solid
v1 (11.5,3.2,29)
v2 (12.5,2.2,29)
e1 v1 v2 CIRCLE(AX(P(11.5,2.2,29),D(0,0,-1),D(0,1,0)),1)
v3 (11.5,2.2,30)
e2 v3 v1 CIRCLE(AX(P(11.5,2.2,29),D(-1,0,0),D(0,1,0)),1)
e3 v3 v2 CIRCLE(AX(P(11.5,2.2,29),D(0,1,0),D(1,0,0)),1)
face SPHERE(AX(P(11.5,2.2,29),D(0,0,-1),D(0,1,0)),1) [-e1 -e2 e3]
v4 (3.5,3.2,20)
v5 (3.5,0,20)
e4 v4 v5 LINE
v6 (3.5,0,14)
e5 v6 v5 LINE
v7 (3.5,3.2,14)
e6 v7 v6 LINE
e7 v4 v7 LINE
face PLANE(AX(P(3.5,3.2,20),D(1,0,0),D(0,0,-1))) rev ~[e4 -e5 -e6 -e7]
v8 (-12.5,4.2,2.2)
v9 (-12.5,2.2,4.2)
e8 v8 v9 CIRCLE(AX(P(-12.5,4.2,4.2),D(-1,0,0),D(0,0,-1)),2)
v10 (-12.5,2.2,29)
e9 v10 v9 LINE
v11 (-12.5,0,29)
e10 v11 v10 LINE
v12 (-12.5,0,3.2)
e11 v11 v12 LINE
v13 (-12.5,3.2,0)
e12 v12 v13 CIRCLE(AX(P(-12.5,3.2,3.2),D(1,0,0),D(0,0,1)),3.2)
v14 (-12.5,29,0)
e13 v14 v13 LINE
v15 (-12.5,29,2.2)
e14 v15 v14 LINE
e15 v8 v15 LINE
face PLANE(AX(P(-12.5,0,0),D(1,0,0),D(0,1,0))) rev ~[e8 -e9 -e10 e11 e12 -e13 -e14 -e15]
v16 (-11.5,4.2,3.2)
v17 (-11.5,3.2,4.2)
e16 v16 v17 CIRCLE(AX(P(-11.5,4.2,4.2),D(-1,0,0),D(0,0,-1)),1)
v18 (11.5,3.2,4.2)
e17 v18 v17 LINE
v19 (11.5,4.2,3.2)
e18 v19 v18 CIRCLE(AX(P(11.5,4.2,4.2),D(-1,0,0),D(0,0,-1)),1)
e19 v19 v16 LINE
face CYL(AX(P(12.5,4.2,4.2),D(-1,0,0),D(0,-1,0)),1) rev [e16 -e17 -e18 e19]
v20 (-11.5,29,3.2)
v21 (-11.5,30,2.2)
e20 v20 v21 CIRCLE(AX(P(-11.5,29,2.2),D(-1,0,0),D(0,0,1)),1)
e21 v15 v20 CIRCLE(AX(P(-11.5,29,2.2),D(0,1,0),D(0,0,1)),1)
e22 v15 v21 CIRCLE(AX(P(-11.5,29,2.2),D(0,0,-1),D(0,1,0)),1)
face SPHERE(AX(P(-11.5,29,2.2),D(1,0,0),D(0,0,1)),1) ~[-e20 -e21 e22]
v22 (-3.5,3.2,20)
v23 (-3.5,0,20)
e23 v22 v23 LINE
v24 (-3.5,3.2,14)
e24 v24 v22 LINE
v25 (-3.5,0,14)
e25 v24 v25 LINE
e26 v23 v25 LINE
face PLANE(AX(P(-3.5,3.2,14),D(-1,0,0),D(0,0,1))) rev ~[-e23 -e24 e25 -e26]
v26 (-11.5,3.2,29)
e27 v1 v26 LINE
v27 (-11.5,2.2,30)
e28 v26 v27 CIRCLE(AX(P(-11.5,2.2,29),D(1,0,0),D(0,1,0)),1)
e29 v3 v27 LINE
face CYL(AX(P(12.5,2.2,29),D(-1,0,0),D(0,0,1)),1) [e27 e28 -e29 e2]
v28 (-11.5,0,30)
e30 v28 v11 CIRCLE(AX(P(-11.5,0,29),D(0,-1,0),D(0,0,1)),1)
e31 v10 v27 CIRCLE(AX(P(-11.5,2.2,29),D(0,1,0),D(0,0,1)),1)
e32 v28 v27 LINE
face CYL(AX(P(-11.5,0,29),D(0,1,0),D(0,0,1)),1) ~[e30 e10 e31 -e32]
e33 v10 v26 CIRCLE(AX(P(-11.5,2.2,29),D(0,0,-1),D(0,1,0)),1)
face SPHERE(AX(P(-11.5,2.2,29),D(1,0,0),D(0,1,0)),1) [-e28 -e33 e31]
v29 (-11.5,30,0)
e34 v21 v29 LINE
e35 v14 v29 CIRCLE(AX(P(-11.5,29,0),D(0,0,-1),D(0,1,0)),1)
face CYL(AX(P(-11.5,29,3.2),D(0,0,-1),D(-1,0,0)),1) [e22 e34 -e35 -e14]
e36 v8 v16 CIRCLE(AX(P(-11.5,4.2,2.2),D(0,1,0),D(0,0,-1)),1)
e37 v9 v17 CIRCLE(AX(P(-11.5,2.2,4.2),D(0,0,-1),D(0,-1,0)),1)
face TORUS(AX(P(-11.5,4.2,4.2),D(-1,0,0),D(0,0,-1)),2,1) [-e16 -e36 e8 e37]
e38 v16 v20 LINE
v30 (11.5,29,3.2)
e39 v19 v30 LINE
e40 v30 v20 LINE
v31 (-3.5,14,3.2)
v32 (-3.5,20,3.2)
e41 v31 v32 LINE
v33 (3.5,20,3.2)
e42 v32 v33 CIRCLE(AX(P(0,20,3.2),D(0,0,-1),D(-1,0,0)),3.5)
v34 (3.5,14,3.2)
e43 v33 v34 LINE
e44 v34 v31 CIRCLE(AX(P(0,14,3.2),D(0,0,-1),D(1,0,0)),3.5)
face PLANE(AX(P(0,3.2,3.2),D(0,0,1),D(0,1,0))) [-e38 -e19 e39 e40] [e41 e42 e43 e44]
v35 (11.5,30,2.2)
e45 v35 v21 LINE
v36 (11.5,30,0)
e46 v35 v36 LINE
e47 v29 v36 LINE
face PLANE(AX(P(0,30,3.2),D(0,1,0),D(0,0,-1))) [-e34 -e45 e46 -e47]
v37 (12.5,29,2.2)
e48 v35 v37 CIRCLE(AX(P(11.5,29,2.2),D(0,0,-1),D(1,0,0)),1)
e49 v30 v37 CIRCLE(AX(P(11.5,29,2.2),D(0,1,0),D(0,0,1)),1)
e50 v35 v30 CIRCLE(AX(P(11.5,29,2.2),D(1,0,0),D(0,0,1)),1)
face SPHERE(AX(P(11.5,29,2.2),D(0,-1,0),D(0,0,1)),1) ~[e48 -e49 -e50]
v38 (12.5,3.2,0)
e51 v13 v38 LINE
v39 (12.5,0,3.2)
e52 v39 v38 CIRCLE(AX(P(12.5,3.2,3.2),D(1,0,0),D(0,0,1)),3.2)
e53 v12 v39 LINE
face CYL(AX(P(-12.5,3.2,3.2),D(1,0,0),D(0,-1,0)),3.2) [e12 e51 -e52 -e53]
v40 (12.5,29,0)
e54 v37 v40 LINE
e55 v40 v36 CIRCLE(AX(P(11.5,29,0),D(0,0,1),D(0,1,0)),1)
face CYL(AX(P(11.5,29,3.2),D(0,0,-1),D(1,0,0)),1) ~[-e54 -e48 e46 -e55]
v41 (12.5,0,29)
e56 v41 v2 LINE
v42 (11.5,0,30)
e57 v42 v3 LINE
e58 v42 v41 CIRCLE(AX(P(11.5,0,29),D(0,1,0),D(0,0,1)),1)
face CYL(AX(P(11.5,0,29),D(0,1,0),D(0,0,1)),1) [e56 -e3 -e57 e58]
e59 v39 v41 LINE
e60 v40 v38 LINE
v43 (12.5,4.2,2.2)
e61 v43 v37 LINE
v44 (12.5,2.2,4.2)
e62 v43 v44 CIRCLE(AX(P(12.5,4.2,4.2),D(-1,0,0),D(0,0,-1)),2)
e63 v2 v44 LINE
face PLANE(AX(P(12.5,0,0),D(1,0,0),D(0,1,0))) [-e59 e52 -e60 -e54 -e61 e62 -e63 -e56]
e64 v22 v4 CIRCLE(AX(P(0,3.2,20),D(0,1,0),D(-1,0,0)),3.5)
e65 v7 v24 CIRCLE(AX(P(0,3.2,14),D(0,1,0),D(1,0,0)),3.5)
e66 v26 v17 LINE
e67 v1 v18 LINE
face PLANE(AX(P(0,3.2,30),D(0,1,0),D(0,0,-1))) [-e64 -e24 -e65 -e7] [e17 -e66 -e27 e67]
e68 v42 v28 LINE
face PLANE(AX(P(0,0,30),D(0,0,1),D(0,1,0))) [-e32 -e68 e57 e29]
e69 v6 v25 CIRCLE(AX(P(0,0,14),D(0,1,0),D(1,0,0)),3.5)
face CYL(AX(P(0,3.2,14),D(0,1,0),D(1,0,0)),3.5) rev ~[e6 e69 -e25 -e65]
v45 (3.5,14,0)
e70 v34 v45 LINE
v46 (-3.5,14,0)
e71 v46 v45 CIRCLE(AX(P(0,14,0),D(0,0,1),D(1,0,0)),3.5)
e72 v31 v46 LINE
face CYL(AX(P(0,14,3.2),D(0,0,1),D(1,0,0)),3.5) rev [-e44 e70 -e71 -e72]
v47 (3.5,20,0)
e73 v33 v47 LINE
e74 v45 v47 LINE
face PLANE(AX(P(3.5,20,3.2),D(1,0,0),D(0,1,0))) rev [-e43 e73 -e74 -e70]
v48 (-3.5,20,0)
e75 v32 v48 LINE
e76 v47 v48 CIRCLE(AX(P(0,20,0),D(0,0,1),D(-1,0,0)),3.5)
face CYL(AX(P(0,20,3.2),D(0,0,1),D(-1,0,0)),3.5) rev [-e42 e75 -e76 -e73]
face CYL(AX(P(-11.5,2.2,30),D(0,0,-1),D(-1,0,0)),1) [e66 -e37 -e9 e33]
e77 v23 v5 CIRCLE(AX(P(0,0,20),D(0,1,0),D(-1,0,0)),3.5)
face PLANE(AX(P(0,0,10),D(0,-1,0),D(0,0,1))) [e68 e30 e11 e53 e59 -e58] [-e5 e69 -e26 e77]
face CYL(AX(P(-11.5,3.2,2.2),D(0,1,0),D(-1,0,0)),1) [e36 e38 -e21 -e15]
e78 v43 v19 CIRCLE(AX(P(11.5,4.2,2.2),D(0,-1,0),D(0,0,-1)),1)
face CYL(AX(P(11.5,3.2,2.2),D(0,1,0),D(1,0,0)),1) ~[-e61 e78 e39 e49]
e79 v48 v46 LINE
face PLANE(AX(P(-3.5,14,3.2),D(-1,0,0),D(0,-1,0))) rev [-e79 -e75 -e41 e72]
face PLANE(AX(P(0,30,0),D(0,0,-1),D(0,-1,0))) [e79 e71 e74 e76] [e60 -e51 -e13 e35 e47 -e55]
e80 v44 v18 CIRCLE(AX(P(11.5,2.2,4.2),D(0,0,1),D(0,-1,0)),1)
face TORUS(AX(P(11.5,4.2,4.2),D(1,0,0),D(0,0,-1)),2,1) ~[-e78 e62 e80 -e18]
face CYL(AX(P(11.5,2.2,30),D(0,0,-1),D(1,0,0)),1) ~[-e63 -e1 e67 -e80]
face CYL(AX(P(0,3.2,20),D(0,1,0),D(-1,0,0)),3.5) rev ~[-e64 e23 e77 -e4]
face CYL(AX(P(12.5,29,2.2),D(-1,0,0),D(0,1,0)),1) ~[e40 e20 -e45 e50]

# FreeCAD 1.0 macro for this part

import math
import FreeCAD as App
import Part
import Sketcher


def edges_at(feature, points):
    """Names of the edges that pass closest to the given points."""
    edges = feature.Shape.Edges
    near = lambda p: min(range(len(edges)), key=lambda i: edges[i].distToShape(Part.Vertex(*p))[0])
    return sorted({f"Edge{near(p) + 1}" for p in points})


def add_polygon(sketch, points):
    """Adds a closed chain of lines whose ends are joined by coincident constraints."""
    first, n = sketch.GeometryCount, len(points)
    for a, b in zip(points, points[1:] + points[:1]):
        sketch.addGeometry(Part.LineSegment(App.Vector(*a, 0), App.Vector(*b, 0)), False)
    for i in range(n):
        sketch.addConstraint(Sketcher.Constraint("Coincident", first + i, 2, first + (i + 1) % n, 1))

doc = App.newDocument("Part")
params = doc.addObject("Spreadsheet::Sheet", "Params")
for row, (alias, value) in enumerate([
    ("sketch1_width", "26.8 mm"),
    ("sketch1_width2", "3.2 mm"),
    ("pad1_length", "25 mm"),
    ("sketch2_radius", "3.5 mm"),
    ("sketch2_height", "6 mm"),
    ("fillet_radius", "1 mm"),
    ("fillet2_radius", "3.2 mm"),
], start=1):
    params.set(f"A{row}", alias)
    params.set(f"B{row}", "=" + value)
    params.setAlias(f"B{row}", alias)

body = doc.addObject("PartDesign::Body", "Body")

# Sketch on YZ plane
sketch1 = body.newObject("Sketcher::SketchObject", "Sketch")
sketch1.AttachmentSupport = (doc.getObject("YZ_Plane"), [""])
sketch1.MapMode = "FlatFace"
add_polygon(sketch1, [(0, 30), (0, 0), (30, 0), (30, 3.2), (3.2, 3.2), (3.2, 30)])  # lines 0-5
sketch1.addConstraint([
    Sketcher.Constraint("Vertical", 0),
    Sketcher.Constraint("Horizontal", 1),
    Sketcher.Constraint("Vertical", 2),
    Sketcher.Constraint("Horizontal", 3),
    Sketcher.Constraint("Vertical", 4),
    Sketcher.Constraint("Horizontal", 5),
    Sketcher.Constraint("Coincident", 0, 2, -1, 1),
    Sketcher.Constraint("Equal", 1, 0),
    Sketcher.Constraint("Equal", 5, 2),
    Sketcher.Constraint("DistanceX", 3, 2, 3, 1, 26.8),
    Sketcher.Constraint("DistanceX", 5, 2, 5, 1, 3.2),
])
sketch1.setExpression("Constraints[15]", "Params.sketch1_width")
sketch1.setExpression("Constraints[16]", "Params.sketch1_width2")
pad1 = body.newObject("PartDesign::Pad", "Pad")
pad1.Profile = sketch1
pad1.setExpression("Length", "Params.pad1_length")
pad1.Midplane = True

# Sketch on XZ plane
sketch2 = body.newObject("Sketcher::SketchObject", "Sketch001")
sketch2.AttachmentSupport = (doc.getObject("XZ_Plane"), [""])
sketch2.MapMode = "FlatFace"
sketch2.AttachmentOffset = App.Placement(App.Vector(0, 0, -3.2), App.Rotation())
sketch2.addGeometry([
    Part.ArcOfCircle(Part.Circle(App.Vector(0, 20, 0), App.Vector(0, 0, 1), 3.5), math.radians(0), math.radians(180)),
    Part.LineSegment(App.Vector(3.5, 20, 0), App.Vector(3.5, 14, 0)),
    Part.ArcOfCircle(Part.Circle(App.Vector(0, 14, 0), App.Vector(0, 0, 1), 3.5), math.radians(180), math.radians(360)),
    Part.LineSegment(App.Vector(-3.5, 14, 0), App.Vector(-3.5, 20, 0)),
], False)
sketch2.addConstraint([
    Sketcher.Constraint("Tangent", 0, 1, 1, 1),
    Sketcher.Constraint("Tangent", 1, 2, 2, 2),
    Sketcher.Constraint("Tangent", 2, 1, 3, 1),
    Sketcher.Constraint("Tangent", 3, 2, 0, 2),
    Sketcher.Constraint("Vertical", 1),
    Sketcher.Constraint("Vertical", 3),
    Sketcher.Constraint("PointOnObject", 0, 3, -2),
    Sketcher.Constraint("Radius", 0, 3.5),
    Sketcher.Constraint("DistanceY", 1, 2, 1, 1, 6.0),
    Sketcher.Constraint("DistanceY", -1, 1, 0, 3, 20.0),
])
sketch2.setExpression("Constraints[7]", "Params.sketch2_radius")
sketch2.setExpression("Constraints[8]", "Params.sketch2_height")
pocket1 = body.newObject("PartDesign::Pocket", "Pocket")
pocket1.Profile = sketch2
pocket1.Type = "ThroughAll"
pocket1.Reversed = True
doc.recompute()

datumplane = body.newObject("PartDesign::Plane", "DatumPlane")
datumplane.Placement = App.Placement(App.Vector(0, 0, 0), App.Rotation(App.Vector(0, 0.707106781, 0.707106781), App.Vector(-1, 0, 0), App.Vector(0, -0.707106781, 0.707106781), "ZXY"))
mirrored = body.newObject("PartDesign::Mirrored", "Mirrored")
mirrored.Originals = [pocket1]
mirrored.MirrorPlane = (datumplane, [""])
body.Tip = mirrored
doc.recompute()

fillet = body.newObject("PartDesign::Fillet", "Fillet")
fillet.Base = (mirrored, edges_at(mirrored, [
    (12.5, 16.6, 3.2),
    (0, 30, 3.2),
    (-12.5, 16.6, 3.2),
    (12.5, 3.2, 16.6),
    (0, 3.2, 30),
    (-12.5, 3.2, 16.6),
    (0, 3.2, 3.2),
    (12.5, 30, 1.6),
    (-12.5, 30, 1.6),
    (-12.5, 1.6, 30),
    (12.5, 1.6, 30),
]))
fillet.setExpression("Radius", "Params.fillet_radius")
doc.recompute()

fillet2 = body.newObject("PartDesign::Fillet", "Fillet001")
fillet2.Base = (fillet, edges_at(fillet, [(0, 0, 0)]))
fillet2.setExpression("Radius", "Params.fillet2_radius")

doc.recompute()
